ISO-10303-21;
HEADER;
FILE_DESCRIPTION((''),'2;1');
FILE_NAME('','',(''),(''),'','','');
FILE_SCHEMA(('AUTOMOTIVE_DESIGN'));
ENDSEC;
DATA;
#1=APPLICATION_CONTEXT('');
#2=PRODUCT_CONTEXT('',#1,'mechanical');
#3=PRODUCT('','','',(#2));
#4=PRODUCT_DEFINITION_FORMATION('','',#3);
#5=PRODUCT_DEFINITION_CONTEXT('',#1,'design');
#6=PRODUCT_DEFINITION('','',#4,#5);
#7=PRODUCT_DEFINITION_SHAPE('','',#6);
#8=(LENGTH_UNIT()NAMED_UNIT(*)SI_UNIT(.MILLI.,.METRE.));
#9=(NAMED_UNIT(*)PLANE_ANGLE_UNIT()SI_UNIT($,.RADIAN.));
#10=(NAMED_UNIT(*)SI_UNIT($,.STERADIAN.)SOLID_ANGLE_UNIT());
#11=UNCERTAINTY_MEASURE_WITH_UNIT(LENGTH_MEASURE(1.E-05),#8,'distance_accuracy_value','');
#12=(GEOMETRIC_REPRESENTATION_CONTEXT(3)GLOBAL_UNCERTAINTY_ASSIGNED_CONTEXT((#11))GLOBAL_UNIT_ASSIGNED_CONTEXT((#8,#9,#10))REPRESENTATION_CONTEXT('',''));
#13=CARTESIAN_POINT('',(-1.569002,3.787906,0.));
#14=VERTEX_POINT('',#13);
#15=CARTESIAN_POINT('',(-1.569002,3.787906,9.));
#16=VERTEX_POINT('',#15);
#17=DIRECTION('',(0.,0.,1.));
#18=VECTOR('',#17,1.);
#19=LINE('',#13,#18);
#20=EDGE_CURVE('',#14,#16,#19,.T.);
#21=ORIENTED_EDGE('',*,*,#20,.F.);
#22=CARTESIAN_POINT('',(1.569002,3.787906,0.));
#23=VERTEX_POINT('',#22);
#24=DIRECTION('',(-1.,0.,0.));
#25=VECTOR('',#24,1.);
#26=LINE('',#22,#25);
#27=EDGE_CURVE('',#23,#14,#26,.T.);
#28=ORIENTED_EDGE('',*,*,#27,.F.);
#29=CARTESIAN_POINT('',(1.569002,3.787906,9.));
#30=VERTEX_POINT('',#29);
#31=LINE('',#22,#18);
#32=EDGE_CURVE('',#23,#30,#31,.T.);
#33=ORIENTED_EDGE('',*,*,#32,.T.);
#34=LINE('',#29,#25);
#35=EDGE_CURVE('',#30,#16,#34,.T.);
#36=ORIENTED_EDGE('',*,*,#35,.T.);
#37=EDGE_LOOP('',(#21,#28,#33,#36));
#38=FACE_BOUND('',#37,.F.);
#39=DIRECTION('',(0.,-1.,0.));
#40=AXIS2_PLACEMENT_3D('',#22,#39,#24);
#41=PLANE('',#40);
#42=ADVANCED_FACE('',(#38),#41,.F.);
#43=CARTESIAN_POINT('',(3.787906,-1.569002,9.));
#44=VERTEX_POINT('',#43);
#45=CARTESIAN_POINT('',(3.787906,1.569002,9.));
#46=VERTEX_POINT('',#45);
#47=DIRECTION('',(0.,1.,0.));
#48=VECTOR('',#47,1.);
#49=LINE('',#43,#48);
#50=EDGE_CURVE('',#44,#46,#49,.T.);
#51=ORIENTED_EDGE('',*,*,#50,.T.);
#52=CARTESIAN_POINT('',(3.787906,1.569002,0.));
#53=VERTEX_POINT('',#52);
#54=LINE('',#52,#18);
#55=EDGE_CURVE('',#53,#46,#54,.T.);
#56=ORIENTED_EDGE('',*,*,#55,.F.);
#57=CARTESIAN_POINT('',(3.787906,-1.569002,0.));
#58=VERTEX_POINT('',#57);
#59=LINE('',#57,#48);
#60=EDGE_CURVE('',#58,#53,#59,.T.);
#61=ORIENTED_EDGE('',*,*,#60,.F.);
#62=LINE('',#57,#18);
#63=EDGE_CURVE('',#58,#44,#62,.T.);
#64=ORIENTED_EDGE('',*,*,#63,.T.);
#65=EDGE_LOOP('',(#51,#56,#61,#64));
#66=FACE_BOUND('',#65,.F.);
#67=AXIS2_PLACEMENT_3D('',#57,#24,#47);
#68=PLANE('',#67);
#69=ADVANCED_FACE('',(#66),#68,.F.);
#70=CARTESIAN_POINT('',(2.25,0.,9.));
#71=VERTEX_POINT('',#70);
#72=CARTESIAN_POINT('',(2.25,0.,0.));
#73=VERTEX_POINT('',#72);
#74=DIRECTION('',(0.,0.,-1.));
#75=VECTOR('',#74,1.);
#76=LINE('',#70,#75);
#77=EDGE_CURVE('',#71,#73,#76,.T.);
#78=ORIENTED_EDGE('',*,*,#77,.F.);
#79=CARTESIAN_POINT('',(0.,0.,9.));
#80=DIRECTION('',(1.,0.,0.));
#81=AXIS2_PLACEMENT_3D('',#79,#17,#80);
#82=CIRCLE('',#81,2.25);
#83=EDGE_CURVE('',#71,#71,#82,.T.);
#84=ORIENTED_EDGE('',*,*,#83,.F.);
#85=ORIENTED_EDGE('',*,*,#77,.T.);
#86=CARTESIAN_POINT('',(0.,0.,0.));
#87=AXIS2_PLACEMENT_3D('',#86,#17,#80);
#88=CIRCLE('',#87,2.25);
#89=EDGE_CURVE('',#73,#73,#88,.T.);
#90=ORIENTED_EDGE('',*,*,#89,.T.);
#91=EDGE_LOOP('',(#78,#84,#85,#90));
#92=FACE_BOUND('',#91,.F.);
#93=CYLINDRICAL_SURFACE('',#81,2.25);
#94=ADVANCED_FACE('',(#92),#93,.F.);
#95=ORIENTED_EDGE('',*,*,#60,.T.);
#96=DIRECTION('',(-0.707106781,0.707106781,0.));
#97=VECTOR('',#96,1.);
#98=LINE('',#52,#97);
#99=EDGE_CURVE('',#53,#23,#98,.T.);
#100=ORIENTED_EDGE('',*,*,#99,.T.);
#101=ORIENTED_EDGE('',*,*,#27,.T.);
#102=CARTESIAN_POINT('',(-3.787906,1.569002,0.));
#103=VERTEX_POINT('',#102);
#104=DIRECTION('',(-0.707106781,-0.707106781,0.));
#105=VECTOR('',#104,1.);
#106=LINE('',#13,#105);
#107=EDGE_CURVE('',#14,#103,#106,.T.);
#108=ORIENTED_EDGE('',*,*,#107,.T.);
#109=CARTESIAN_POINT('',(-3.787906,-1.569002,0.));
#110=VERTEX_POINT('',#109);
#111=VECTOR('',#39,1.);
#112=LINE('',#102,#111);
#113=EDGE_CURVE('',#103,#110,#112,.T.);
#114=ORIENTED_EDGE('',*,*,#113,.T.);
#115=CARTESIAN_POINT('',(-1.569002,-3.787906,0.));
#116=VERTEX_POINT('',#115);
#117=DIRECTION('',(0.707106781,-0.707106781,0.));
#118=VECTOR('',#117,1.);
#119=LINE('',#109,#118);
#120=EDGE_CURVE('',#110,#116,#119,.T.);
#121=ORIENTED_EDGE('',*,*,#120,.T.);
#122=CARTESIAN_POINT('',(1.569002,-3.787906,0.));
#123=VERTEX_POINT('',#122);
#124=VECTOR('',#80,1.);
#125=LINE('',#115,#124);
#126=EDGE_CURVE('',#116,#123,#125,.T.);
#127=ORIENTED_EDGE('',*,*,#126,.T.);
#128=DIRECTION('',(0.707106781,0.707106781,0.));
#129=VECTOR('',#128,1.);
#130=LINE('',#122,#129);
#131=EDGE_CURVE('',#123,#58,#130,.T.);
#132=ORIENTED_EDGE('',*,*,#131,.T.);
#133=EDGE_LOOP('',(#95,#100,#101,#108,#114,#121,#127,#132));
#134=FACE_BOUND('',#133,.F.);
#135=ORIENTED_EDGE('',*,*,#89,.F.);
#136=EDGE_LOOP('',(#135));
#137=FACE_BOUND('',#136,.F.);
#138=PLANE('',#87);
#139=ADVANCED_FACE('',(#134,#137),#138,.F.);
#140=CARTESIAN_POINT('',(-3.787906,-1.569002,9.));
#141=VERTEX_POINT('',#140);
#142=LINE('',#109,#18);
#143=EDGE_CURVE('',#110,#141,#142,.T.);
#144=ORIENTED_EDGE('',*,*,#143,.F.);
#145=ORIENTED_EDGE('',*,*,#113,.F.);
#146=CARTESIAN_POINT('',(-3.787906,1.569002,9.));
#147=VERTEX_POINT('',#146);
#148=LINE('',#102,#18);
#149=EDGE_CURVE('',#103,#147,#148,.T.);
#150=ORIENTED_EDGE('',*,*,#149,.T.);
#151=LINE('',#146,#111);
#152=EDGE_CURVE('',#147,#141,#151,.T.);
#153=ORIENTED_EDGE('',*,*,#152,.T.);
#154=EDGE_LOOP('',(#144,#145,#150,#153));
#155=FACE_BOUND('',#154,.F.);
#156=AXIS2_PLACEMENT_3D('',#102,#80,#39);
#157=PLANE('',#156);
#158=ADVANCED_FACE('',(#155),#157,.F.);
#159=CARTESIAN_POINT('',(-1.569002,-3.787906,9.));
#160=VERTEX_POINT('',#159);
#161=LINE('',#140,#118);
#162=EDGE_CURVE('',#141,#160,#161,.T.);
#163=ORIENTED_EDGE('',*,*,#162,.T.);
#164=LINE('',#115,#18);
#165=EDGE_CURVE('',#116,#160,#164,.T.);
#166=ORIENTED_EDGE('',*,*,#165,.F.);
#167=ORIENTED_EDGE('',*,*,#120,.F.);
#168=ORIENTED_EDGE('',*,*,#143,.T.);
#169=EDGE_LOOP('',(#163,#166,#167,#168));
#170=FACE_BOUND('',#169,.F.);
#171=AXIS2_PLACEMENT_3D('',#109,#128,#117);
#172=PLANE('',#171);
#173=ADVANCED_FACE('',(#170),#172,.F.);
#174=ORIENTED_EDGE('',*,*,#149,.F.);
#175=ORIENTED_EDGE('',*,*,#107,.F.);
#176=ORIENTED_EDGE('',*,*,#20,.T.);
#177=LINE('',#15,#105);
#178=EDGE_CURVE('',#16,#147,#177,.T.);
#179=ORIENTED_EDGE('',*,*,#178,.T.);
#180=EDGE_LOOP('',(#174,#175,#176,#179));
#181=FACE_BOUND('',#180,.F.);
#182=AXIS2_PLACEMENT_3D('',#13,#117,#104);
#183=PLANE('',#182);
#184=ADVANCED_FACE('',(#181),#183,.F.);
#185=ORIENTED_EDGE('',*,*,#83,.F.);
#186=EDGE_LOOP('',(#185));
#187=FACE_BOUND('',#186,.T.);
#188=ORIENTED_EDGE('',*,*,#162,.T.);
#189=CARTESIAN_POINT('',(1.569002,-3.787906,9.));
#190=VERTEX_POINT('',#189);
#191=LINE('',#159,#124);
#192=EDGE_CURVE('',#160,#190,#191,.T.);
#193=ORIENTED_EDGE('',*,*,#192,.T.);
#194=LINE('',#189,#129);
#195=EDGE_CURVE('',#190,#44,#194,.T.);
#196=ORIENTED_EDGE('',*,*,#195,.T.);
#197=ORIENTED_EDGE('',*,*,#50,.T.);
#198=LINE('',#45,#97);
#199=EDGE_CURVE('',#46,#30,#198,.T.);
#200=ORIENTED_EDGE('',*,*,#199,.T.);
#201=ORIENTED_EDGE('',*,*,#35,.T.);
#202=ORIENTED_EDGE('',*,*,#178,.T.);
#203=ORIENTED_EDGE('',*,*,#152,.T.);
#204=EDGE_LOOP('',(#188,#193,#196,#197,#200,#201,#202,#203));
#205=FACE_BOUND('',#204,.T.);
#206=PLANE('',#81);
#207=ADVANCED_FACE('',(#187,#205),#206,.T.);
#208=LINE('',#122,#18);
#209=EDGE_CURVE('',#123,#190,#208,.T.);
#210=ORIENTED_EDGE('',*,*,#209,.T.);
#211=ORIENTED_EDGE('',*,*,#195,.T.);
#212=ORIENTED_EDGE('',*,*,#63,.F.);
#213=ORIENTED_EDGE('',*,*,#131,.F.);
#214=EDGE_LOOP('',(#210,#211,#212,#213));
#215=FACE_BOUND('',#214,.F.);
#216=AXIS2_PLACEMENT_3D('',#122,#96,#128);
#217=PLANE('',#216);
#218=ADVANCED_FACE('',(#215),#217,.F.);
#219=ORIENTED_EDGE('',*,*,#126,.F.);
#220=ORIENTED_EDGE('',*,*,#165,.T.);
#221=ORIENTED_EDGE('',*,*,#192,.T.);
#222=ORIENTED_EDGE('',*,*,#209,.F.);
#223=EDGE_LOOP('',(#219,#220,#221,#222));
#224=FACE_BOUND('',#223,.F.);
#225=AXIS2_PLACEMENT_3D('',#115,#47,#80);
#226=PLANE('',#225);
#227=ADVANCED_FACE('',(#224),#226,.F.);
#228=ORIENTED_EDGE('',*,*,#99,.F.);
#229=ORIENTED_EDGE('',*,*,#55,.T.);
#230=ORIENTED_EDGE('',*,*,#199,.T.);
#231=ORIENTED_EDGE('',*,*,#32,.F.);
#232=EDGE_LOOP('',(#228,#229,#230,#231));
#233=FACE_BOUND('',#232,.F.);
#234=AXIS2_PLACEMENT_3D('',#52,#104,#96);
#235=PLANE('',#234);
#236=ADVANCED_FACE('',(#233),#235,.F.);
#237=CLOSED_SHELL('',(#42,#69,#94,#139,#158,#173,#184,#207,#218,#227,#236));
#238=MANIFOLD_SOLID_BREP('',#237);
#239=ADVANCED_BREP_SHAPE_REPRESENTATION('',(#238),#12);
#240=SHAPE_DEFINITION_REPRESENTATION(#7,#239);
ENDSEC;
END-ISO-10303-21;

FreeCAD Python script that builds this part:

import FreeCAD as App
import Part
import Sketcher
from FreeCAD import Vector

doc = App.newDocument("Part")
body = doc.addObject("PartDesign::Body", "Body")

sketch1 = body.newObject("Sketcher::SketchObject", "Sketch")
sketch1.AttachmentSupport = (doc.getObject("XY_Plane"), [""])
sketch1.MapMode = "FlatFace"
sketch1.addGeometry(Part.LineSegment(Vector(1.6, -3.8, 0), Vector(3.8, -1.6, 0)), False)
sketch1.addGeometry(Part.LineSegment(Vector(3.8, -1.6, 0), Vector(3.8, 1.6, 0)), False)
sketch1.addGeometry(Part.LineSegment(Vector(3.8, 1.6, 0), Vector(1.6, 3.8, 0)), False)
sketch1.addGeometry(Part.LineSegment(Vector(1.6, 3.8, 0), Vector(-1.6, 3.8, 0)), False)
sketch1.addGeometry(Part.LineSegment(Vector(-1.6, 3.8, 0), Vector(-3.8, 1.6, 0)), False)
sketch1.addGeometry(Part.LineSegment(Vector(-3.8, 1.6, 0), Vector(-3.8, -1.6, 0)), False)
sketch1.addGeometry(Part.LineSegment(Vector(-3.8, -1.6, 0), Vector(-1.6, -3.8, 0)), False)
sketch1.addGeometry(Part.LineSegment(Vector(-1.6, -3.8, 0), Vector(1.6, -3.8, 0)), False)
sketch1.addConstraint(Sketcher.Constraint("Coincident", 0, 2, 1, 1))
sketch1.addConstraint(Sketcher.Constraint("Coincident", 1, 2, 2, 1))
sketch1.addConstraint(Sketcher.Constraint("Coincident", 2, 2, 3, 1))
sketch1.addConstraint(Sketcher.Constraint("Coincident", 3, 2, 4, 1))
sketch1.addConstraint(Sketcher.Constraint("Coincident", 4, 2, 5, 1))
sketch1.addConstraint(Sketcher.Constraint("Coincident", 5, 2, 6, 1))
sketch1.addConstraint(Sketcher.Constraint("Coincident", 6, 2, 7, 1))
sketch1.addConstraint(Sketcher.Constraint("Coincident", 7, 2, 0, 1))
sketch1.addConstraint(Sketcher.Constraint("Vertical", 1))
sketch1.addConstraint(Sketcher.Constraint("Horizontal", 3))
sketch1.addConstraint(Sketcher.Constraint("Vertical", 5))
sketch1.addConstraint(Sketcher.Constraint("Horizontal", 7))
sketch1.addConstraint(Sketcher.Constraint("Symmetric", 0, 2, 4, 2, -1, 1))
sketch1.addConstraint(Sketcher.Constraint("Symmetric", 2, 2, 6, 2, -1, 1))
sketch1.addConstraint(Sketcher.Constraint("Perpendicular", 0, 2))
sketch1.addConstraint(Sketcher.Constraint("Perpendicular", 2, 4))
sketch1.addConstraint(Sketcher.Constraint("Perpendicular", 4, 6))
sketch1.addConstraint(Sketcher.Constraint("Horizontal", 1, 2, 4, 2))
sketch1.addConstraint(Sketcher.Constraint("Vertical", 3, 2, 6, 2))
sketch1.addConstraint(Sketcher.Constraint("Equal", 7, 1))
sketch1.addConstraint(Sketcher.Constraint("DistanceX", 3, 2, 3, 1, 3.138004))
sketch1.addConstraint(Sketcher.Constraint("Distance", 0, 3.138004))
pad1 = body.newObject("PartDesign::Pad", "Pad")
pad1.Profile = sketch1
pad1.Length = 9

sketch2 = body.newObject("Sketcher::SketchObject", "Sketch001")
sketch2.AttachmentSupport = (doc.getObject("XY_Plane"), [""])
sketch2.MapMode = "FlatFace"
sketch2.AttachmentOffset = App.Placement(Vector(0, 0, 9), App.Rotation())
sketch2.addGeometry(Part.Circle(Vector(0, 0, 0), Vector(0, 0, 1), 2.2), False)
sketch2.addConstraint(Sketcher.Constraint("Coincident", 0, 3, -1, 1))
sketch2.addConstraint(Sketcher.Constraint("Diameter", 0, 4.5))
pocket1 = body.newObject("PartDesign::Pocket", "Pocket")
pocket1.Profile = sketch2
pocket1.Type = "ThroughAll"

doc.recompute()
